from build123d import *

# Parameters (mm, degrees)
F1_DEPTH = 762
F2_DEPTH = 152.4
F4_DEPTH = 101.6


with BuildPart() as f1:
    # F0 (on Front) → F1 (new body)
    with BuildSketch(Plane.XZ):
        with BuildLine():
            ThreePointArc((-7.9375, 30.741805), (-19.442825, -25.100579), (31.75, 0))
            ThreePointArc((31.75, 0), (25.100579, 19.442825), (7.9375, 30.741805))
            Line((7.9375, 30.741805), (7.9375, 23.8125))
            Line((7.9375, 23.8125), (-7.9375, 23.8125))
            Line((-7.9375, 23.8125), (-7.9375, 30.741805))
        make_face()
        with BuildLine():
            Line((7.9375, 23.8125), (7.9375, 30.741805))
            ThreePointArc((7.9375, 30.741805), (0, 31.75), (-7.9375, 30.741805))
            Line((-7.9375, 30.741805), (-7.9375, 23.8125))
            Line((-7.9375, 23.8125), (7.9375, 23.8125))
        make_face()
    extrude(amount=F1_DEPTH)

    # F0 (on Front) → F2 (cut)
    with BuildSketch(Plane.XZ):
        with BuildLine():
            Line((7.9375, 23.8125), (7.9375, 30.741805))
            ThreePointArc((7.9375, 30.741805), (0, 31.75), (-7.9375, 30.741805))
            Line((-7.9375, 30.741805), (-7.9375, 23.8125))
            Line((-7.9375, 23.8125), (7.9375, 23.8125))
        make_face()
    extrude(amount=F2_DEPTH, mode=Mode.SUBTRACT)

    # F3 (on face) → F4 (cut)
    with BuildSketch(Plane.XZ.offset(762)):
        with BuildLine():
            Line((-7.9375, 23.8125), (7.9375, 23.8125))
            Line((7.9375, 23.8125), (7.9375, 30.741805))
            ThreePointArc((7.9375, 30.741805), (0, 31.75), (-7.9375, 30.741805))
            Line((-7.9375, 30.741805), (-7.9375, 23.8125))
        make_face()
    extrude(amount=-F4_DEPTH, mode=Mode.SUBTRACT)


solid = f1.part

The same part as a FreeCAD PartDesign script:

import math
import FreeCAD as App
import Part
import Sketcher
Q = App.Units.Quantity

doc = App.newDocument("Part")
body = doc.addObject("PartDesign::Body", "Body")

# Sketch on XZ plane
sketch1 = body.newObject("Sketcher::SketchObject", "Sketch")
sketch1.AttachmentSupport = (doc.getObject("XZ_Plane"), [""])
sketch1.MapMode = "FlatFace"
sketch1.addGeometry(Part.ArcOfCircle(Part.Circle(App.Vector(0, 0, 0), App.Vector(0, 0, 1), 31.75), math.radians(104.477512), math.radians(360)), False)
sketch1.addGeometry(Part.ArcOfCircle(Part.Circle(App.Vector(0.000001, 0.000001, 0), App.Vector(0, 0, 1), 31.749999), math.radians(-0.000001), math.radians(75.52249)), False)
sketch1.addGeometry(Part.ArcOfCircle(Part.Circle(App.Vector(0, 0.000009, 0), App.Vector(0, 0, 1), 31.749991), math.radians(75.522483), math.radians(104.477517)), False)
sketch1.addConstraint(Sketcher.Constraint("Tangent", 0, 2, 1, 1))
sketch1.addConstraint(Sketcher.Constraint("Tangent", 1, 2, 2, 1))
sketch1.addConstraint(Sketcher.Constraint("Tangent", 2, 2, 0, 1))
sketch1.addConstraint(Sketcher.Constraint("Coincident", 0, 3, -1, 1))
sketch1.addConstraint(Sketcher.Constraint("PointOnObject", 0, 2, -1))
sketch1.addConstraint(Sketcher.Constraint("Horizontal", 1, 2, 2, 2))
sketch1.addConstraint(Sketcher.Constraint("Radius", 0, Q("1.25 in")))
sketch1.addConstraint(Sketcher.Constraint("DistanceX", -1, 1, 1, 2, Q("0.3125 in")))
pad1 = body.newObject("PartDesign::Pad", "Pad")
pad1.Profile = sketch1
pad1.Length = Q("30 in")

# Sketch on XZ plane
sketch2 = body.newObject("Sketcher::SketchObject", "Sketch001")
sketch2.AttachmentSupport = (doc.getObject("XZ_Plane"), [""])
sketch2.MapMode = "FlatFace"
sketch2.addGeometry(Part.LineSegment(App.Vector(7.9375, 23.8125, 0), App.Vector(7.9375, 30.741805, 0)), False)
sketch2.addGeometry(Part.ArcOfCircle(Part.Circle(App.Vector(0, 0.000009, 0), App.Vector(0, 0, 1), 31.749991), math.radians(75.522483), math.radians(104.477517)), False)
sketch2.addGeometry(Part.LineSegment(App.Vector(-7.9375, 30.741805, 0), App.Vector(-7.9375, 23.8125, 0)), False)
sketch2.addGeometry(Part.LineSegment(App.Vector(-7.9375, 23.8125, 0), App.Vector(7.9375, 23.8125, 0)), False)
sketch2.addConstraint(Sketcher.Constraint("Coincident", 0, 2, 1, 1))
sketch2.addConstraint(Sketcher.Constraint("Coincident", 1, 2, 2, 1))
sketch2.addConstraint(Sketcher.Constraint("Coincident", 2, 2, 3, 1))
sketch2.addConstraint(Sketcher.Constraint("Coincident", 3, 2, 0, 1))
sketch2.addConstraint(Sketcher.Constraint("Vertical", 0))
sketch2.addConstraint(Sketcher.Constraint("Vertical", 2))
sketch2.addConstraint(Sketcher.Constraint("Horizontal", 3))
sketch2.addConstraint(Sketcher.Constraint("Coincident", 1, 3, -1, 1))
sketch2.addConstraint(Sketcher.Constraint("Horizontal", 0, 2, 1, 2))
sketch2.addConstraint(Sketcher.Constraint("DistanceX", 3, 1, 3, 2, Q("0.625 in")))
sketch2.addConstraint(Sketcher.Constraint("DistanceY", -1, 1, 2, 2, Q("0.9375 in")))
sketch2.addConstraint(Sketcher.Constraint("Radius", 1, Q("31.749991 mm")))
pocket1 = body.newObject("PartDesign::Pocket", "Pocket")
pocket1.Profile = sketch2
pocket1.Length = Q("6 in")
pocket1.Reversed = True

# Sketch on XZ plane
sketch3 = body.newObject("Sketcher::SketchObject", "Sketch002")
sketch3.AttachmentSupport = (doc.getObject("XZ_Plane"), [""])
sketch3.MapMode = "FlatFace"
sketch3.AttachmentOffset = App.Placement(App.Vector(0, 0, 30 * 25.4), App.Rotation())
sketch3.addGeometry(Part.LineSegment(App.Vector(-7.9375, 23.8125, 0), App.Vector(7.9375, 23.8125, 0)), False)
sketch3.addGeometry(Part.LineSegment(App.Vector(7.9375, 23.8125, 0), App.Vector(7.9375, 30.741805, 0)), False)
sketch3.addGeometry(Part.ArcOfCircle(Part.Circle(App.Vector(0, 0.000009, 0), App.Vector(0, 0, 1), 31.749991), math.radians(75.522483), math.radians(104.477517)), False)
sketch3.addGeometry(Part.LineSegment(App.Vector(-7.9375, 30.741805, 0), App.Vector(-7.9375, 23.8125, 0)), False)
sketch3.addConstraint(Sketcher.Constraint("Coincident", 0, 2, 1, 1))
sketch3.addConstraint(Sketcher.Constraint("Coincident", 1, 2, 2, 1))
sketch3.addConstraint(Sketcher.Constraint("Coincident", 2, 2, 3, 1))
sketch3.addConstraint(Sketcher.Constraint("Coincident", 3, 2, 0, 1))
sketch3.addConstraint(Sketcher.Constraint("Horizontal", 0))
sketch3.addConstraint(Sketcher.Constraint("Vertical", 1))
sketch3.addConstraint(Sketcher.Constraint("Vertical", 3))
sketch3.addConstraint(Sketcher.Constraint("Coincident", 2, 3, -1, 1))
sketch3.addConstraint(Sketcher.Constraint("Horizontal", 1, 2, 2, 2))
sketch3.addConstraint(Sketcher.Constraint("DistanceX", 0, 1, 0, 2, Q("0.625 in")))
sketch3.addConstraint(Sketcher.Constraint("DistanceY", -1, 1, 0, 2, Q("0.9375 in")))
sketch3.addConstraint(Sketcher.Constraint("Radius", 2, Q("31.749991 mm")))
pocket2 = body.newObject("PartDesign::Pocket", "Pocket001")
pocket2.Profile = sketch3
pocket2.Length = Q("4 in")

doc.recompute()
